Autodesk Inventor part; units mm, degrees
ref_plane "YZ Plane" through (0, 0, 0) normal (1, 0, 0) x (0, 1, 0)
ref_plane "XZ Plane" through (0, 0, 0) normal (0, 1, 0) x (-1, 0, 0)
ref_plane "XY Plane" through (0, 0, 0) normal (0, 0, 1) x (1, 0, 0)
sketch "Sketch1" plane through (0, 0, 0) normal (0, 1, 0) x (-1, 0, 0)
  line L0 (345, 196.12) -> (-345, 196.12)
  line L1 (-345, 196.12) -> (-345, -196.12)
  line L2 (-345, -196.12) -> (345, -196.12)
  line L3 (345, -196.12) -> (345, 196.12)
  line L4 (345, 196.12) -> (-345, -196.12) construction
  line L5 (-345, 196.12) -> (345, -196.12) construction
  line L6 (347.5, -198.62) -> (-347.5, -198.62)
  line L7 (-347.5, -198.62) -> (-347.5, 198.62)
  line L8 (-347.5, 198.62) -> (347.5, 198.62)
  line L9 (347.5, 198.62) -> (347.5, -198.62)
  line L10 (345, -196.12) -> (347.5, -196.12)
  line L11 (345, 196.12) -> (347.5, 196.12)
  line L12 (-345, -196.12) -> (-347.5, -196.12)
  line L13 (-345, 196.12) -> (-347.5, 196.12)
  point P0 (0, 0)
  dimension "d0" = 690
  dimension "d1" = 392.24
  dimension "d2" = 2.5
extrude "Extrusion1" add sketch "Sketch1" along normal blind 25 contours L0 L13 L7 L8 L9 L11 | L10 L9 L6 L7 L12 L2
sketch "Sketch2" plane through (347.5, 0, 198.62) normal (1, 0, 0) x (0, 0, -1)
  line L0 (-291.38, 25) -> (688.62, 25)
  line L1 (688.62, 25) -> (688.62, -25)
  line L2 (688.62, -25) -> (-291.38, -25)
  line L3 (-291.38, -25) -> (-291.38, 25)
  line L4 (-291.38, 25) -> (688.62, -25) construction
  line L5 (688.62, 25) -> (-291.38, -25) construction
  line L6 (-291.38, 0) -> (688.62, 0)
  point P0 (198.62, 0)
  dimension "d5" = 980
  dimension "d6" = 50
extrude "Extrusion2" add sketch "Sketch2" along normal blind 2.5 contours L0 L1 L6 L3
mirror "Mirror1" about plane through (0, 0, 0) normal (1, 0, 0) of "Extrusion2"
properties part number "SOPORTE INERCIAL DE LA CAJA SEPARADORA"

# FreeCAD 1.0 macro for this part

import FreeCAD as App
import Part
import Sketcher

V = App.Vector
Q = App.Units.Quantity


def add_polygon(sketch, points):
    """Adds a closed chain of lines whose ends are joined by coincident constraints."""
    first, n = sketch.GeometryCount, len(points)
    for a, b in zip(points, points[1:] + points[:1]):
        sketch.addGeometry(Part.LineSegment(App.Vector(*a, 0), App.Vector(*b, 0)), False)
    for i in range(n):
        sketch.addConstraint(Sketcher.Constraint("Coincident", first + i, 2, first + (i + 1) % n, 1))

doc = App.newDocument("Part")
body = doc.addObject("PartDesign::Body", "Body")
body.AllowCompound = True

# Sketch on XZ plane
sketch1 = body.newObject("Sketcher::SketchObject", "Sketch")
sketch1.AttachmentSupport = (doc.getObject("XZ_Plane"), [""])
sketch1.MapMode = "FlatFace"
add_polygon(sketch1, [(347.5, 196.1), (-347.5, 196.1), (-347.5, 198.6), (347.5, 198.6)])  # lines 0-3
add_polygon(sketch1, [(-347.5, -196.1), (347.5, -196.1), (347.5, -198.6), (-347.5, -198.6)])  # lines 4-7
sketch1.addConstraint([
    Sketcher.Constraint("Horizontal", 0),
    Sketcher.Constraint("Vertical", 1),
    Sketcher.Constraint("Horizontal", 2),
    Sketcher.Constraint("Vertical", 3),
    Sketcher.Constraint("Horizontal", 4),
    Sketcher.Constraint("Vertical", 5),
    Sketcher.Constraint("Horizontal", 6),
    Sketcher.Constraint("Vertical", 7),
    Sketcher.Constraint("Symmetric", 0, 2, 4, 2, -1, 1),
    Sketcher.Constraint("Symmetric", 2, 2, 6, 2, -1, 1),
    Sketcher.Constraint("Vertical", 3, 2, 4, 2),
    Sketcher.Constraint("DistanceY", 1, 1, 1, 2, Q("2.5 mm")),
    Sketcher.Constraint("DistanceX", 0, 2, 0, 1, Q("695 mm")),
    Sketcher.Constraint("DistanceY", 4, 2, 3, 2, Q("392.24 mm")),
])
pad1 = body.newObject("PartDesign::Pad", "Pad")
pad1.Profile = sketch1
pad1.Length = 25
pad1.Reversed = True

# Sketch on YZ plane
sketch2 = body.newObject("Sketcher::SketchObject", "Sketch001")
sketch2.AttachmentSupport = (doc.getObject("YZ_Plane"), [""])
sketch2.MapMode = "FlatFace"
sketch2.AttachmentOffset = App.Placement(V(0, 0, 347.5), App.Rotation())
add_polygon(sketch2, [(25, -490), (25, 490), (0, 490), (0, -490)])  # lines 0-3
sketch2.addConstraint([
    Sketcher.Constraint("Vertical", 0),
    Sketcher.Constraint("Horizontal", 1),
    Sketcher.Constraint("Vertical", 2),
    Sketcher.Constraint("Horizontal", 3),
    Sketcher.Constraint("Symmetric", 1, 2, 2, 2, -1, 1),
    Sketcher.Constraint("DistanceY", 0, 1, 0, 2, Q("980 mm")),
    Sketcher.Constraint("DistanceX", 1, 2, 1, 1, Q("25 mm")),
])
pad2 = body.newObject("PartDesign::Pad", "Pad001")
pad2.Profile = sketch2
pad2.Length = 2.5
doc.recompute()

mirrored = body.newObject("PartDesign::Mirrored", "Mirrored")
mirrored.Originals = [pad2]
mirrored.MirrorPlane = (doc.getObject("YZ_Plane"), [""])
body.Tip = mirrored

doc.recompute()
